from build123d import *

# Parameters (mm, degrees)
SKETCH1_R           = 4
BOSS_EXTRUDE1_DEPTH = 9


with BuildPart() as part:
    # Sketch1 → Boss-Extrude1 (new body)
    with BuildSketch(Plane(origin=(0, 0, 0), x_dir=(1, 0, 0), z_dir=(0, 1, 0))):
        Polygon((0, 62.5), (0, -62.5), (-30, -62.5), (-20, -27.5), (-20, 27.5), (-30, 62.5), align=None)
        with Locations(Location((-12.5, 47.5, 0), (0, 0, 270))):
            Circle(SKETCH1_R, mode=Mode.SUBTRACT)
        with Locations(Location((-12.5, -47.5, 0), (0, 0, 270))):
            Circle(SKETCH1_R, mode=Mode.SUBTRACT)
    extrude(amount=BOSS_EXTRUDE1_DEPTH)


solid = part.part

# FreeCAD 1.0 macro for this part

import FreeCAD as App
import Part
import Sketcher


def add_polygon(sketch, points):
    """Adds a closed chain of lines whose ends are joined by coincident constraints."""
    first, n = sketch.GeometryCount, len(points)
    for a, b in zip(points, points[1:] + points[:1]):
        sketch.addGeometry(Part.LineSegment(App.Vector(*a, 0), App.Vector(*b, 0)), False)
    for i in range(n):
        sketch.addConstraint(Sketcher.Constraint("Coincident", first + i, 2, first + (i + 1) % n, 1))

doc = App.newDocument("Part")
body = doc.addObject("PartDesign::Body", "Body")

# Sketch on XZ plane
sketch1 = body.newObject("Sketcher::SketchObject", "Sketch")
sketch1.AttachmentSupport = (doc.getObject("XZ_Plane"), [""])
sketch1.MapMode = "FlatFace"
add_polygon(sketch1, [(0, 62.5), (0, -62.5), (-30, -62.5), (-20, -27.5), (-20, 27.5), (-30, 62.5)])  # lines 0-5
sketch1.addGeometry(Part.Circle(App.Vector(-12.5, 47.5, 0), App.Vector(0, 0, 1), 4), False)  # 6
sketch1.addGeometry(Part.Circle(App.Vector(-12.5, -47.5, 0), App.Vector(0, 0, 1), 4), False)  # 7
sketch1.addConstraint(Sketcher.Constraint("Vertical", 0))
sketch1.addConstraint(Sketcher.Constraint("Horizontal", 1))
sketch1.addConstraint(Sketcher.Constraint("Vertical", 3))
sketch1.addConstraint(Sketcher.Constraint("Horizontal", 5))
sketch1.addConstraint(Sketcher.Constraint("Equal", 6, 7))
sketch1.addConstraint(Sketcher.Constraint("Symmetric", 0, 2, 5, 2, -1, 1))
sketch1.addConstraint(Sketcher.Constraint("Symmetric", 6, 3, 7, 3, -1))
sketch1.addConstraint(Sketcher.Constraint("Vertical", 1, 2, 4, 2))
sketch1.addConstraint(Sketcher.Constraint("Equal", 2, 4))
sketch1.addConstraint(Sketcher.Constraint("Diameter", 6, 8.0))
sketch1.addConstraint(Sketcher.Constraint("DistanceX", 1, 2, 1, 1, 30.0))
sketch1.addConstraint(Sketcher.Constraint("DistanceY", 0, 2, 0, 1, 125.0))
sketch1.addConstraint(Sketcher.Constraint("DistanceY", 3, 1, 3, 2, 55.0))
sketch1.addConstraint(Sketcher.Constraint("DistanceX", 2, 2, -1, 1, 20.0))
sketch1.addConstraint(Sketcher.Constraint("DistanceY", 7, 3, 6, 3, 95.0))
sketch1.addConstraint(Sketcher.Constraint("DistanceX", 6, 3, -1, 1, 12.5))
pad1 = body.newObject("PartDesign::Pad", "Pad")
pad1.Profile = sketch1
pad1.Length = 9
pad1.Reversed = True

doc.recompute()
